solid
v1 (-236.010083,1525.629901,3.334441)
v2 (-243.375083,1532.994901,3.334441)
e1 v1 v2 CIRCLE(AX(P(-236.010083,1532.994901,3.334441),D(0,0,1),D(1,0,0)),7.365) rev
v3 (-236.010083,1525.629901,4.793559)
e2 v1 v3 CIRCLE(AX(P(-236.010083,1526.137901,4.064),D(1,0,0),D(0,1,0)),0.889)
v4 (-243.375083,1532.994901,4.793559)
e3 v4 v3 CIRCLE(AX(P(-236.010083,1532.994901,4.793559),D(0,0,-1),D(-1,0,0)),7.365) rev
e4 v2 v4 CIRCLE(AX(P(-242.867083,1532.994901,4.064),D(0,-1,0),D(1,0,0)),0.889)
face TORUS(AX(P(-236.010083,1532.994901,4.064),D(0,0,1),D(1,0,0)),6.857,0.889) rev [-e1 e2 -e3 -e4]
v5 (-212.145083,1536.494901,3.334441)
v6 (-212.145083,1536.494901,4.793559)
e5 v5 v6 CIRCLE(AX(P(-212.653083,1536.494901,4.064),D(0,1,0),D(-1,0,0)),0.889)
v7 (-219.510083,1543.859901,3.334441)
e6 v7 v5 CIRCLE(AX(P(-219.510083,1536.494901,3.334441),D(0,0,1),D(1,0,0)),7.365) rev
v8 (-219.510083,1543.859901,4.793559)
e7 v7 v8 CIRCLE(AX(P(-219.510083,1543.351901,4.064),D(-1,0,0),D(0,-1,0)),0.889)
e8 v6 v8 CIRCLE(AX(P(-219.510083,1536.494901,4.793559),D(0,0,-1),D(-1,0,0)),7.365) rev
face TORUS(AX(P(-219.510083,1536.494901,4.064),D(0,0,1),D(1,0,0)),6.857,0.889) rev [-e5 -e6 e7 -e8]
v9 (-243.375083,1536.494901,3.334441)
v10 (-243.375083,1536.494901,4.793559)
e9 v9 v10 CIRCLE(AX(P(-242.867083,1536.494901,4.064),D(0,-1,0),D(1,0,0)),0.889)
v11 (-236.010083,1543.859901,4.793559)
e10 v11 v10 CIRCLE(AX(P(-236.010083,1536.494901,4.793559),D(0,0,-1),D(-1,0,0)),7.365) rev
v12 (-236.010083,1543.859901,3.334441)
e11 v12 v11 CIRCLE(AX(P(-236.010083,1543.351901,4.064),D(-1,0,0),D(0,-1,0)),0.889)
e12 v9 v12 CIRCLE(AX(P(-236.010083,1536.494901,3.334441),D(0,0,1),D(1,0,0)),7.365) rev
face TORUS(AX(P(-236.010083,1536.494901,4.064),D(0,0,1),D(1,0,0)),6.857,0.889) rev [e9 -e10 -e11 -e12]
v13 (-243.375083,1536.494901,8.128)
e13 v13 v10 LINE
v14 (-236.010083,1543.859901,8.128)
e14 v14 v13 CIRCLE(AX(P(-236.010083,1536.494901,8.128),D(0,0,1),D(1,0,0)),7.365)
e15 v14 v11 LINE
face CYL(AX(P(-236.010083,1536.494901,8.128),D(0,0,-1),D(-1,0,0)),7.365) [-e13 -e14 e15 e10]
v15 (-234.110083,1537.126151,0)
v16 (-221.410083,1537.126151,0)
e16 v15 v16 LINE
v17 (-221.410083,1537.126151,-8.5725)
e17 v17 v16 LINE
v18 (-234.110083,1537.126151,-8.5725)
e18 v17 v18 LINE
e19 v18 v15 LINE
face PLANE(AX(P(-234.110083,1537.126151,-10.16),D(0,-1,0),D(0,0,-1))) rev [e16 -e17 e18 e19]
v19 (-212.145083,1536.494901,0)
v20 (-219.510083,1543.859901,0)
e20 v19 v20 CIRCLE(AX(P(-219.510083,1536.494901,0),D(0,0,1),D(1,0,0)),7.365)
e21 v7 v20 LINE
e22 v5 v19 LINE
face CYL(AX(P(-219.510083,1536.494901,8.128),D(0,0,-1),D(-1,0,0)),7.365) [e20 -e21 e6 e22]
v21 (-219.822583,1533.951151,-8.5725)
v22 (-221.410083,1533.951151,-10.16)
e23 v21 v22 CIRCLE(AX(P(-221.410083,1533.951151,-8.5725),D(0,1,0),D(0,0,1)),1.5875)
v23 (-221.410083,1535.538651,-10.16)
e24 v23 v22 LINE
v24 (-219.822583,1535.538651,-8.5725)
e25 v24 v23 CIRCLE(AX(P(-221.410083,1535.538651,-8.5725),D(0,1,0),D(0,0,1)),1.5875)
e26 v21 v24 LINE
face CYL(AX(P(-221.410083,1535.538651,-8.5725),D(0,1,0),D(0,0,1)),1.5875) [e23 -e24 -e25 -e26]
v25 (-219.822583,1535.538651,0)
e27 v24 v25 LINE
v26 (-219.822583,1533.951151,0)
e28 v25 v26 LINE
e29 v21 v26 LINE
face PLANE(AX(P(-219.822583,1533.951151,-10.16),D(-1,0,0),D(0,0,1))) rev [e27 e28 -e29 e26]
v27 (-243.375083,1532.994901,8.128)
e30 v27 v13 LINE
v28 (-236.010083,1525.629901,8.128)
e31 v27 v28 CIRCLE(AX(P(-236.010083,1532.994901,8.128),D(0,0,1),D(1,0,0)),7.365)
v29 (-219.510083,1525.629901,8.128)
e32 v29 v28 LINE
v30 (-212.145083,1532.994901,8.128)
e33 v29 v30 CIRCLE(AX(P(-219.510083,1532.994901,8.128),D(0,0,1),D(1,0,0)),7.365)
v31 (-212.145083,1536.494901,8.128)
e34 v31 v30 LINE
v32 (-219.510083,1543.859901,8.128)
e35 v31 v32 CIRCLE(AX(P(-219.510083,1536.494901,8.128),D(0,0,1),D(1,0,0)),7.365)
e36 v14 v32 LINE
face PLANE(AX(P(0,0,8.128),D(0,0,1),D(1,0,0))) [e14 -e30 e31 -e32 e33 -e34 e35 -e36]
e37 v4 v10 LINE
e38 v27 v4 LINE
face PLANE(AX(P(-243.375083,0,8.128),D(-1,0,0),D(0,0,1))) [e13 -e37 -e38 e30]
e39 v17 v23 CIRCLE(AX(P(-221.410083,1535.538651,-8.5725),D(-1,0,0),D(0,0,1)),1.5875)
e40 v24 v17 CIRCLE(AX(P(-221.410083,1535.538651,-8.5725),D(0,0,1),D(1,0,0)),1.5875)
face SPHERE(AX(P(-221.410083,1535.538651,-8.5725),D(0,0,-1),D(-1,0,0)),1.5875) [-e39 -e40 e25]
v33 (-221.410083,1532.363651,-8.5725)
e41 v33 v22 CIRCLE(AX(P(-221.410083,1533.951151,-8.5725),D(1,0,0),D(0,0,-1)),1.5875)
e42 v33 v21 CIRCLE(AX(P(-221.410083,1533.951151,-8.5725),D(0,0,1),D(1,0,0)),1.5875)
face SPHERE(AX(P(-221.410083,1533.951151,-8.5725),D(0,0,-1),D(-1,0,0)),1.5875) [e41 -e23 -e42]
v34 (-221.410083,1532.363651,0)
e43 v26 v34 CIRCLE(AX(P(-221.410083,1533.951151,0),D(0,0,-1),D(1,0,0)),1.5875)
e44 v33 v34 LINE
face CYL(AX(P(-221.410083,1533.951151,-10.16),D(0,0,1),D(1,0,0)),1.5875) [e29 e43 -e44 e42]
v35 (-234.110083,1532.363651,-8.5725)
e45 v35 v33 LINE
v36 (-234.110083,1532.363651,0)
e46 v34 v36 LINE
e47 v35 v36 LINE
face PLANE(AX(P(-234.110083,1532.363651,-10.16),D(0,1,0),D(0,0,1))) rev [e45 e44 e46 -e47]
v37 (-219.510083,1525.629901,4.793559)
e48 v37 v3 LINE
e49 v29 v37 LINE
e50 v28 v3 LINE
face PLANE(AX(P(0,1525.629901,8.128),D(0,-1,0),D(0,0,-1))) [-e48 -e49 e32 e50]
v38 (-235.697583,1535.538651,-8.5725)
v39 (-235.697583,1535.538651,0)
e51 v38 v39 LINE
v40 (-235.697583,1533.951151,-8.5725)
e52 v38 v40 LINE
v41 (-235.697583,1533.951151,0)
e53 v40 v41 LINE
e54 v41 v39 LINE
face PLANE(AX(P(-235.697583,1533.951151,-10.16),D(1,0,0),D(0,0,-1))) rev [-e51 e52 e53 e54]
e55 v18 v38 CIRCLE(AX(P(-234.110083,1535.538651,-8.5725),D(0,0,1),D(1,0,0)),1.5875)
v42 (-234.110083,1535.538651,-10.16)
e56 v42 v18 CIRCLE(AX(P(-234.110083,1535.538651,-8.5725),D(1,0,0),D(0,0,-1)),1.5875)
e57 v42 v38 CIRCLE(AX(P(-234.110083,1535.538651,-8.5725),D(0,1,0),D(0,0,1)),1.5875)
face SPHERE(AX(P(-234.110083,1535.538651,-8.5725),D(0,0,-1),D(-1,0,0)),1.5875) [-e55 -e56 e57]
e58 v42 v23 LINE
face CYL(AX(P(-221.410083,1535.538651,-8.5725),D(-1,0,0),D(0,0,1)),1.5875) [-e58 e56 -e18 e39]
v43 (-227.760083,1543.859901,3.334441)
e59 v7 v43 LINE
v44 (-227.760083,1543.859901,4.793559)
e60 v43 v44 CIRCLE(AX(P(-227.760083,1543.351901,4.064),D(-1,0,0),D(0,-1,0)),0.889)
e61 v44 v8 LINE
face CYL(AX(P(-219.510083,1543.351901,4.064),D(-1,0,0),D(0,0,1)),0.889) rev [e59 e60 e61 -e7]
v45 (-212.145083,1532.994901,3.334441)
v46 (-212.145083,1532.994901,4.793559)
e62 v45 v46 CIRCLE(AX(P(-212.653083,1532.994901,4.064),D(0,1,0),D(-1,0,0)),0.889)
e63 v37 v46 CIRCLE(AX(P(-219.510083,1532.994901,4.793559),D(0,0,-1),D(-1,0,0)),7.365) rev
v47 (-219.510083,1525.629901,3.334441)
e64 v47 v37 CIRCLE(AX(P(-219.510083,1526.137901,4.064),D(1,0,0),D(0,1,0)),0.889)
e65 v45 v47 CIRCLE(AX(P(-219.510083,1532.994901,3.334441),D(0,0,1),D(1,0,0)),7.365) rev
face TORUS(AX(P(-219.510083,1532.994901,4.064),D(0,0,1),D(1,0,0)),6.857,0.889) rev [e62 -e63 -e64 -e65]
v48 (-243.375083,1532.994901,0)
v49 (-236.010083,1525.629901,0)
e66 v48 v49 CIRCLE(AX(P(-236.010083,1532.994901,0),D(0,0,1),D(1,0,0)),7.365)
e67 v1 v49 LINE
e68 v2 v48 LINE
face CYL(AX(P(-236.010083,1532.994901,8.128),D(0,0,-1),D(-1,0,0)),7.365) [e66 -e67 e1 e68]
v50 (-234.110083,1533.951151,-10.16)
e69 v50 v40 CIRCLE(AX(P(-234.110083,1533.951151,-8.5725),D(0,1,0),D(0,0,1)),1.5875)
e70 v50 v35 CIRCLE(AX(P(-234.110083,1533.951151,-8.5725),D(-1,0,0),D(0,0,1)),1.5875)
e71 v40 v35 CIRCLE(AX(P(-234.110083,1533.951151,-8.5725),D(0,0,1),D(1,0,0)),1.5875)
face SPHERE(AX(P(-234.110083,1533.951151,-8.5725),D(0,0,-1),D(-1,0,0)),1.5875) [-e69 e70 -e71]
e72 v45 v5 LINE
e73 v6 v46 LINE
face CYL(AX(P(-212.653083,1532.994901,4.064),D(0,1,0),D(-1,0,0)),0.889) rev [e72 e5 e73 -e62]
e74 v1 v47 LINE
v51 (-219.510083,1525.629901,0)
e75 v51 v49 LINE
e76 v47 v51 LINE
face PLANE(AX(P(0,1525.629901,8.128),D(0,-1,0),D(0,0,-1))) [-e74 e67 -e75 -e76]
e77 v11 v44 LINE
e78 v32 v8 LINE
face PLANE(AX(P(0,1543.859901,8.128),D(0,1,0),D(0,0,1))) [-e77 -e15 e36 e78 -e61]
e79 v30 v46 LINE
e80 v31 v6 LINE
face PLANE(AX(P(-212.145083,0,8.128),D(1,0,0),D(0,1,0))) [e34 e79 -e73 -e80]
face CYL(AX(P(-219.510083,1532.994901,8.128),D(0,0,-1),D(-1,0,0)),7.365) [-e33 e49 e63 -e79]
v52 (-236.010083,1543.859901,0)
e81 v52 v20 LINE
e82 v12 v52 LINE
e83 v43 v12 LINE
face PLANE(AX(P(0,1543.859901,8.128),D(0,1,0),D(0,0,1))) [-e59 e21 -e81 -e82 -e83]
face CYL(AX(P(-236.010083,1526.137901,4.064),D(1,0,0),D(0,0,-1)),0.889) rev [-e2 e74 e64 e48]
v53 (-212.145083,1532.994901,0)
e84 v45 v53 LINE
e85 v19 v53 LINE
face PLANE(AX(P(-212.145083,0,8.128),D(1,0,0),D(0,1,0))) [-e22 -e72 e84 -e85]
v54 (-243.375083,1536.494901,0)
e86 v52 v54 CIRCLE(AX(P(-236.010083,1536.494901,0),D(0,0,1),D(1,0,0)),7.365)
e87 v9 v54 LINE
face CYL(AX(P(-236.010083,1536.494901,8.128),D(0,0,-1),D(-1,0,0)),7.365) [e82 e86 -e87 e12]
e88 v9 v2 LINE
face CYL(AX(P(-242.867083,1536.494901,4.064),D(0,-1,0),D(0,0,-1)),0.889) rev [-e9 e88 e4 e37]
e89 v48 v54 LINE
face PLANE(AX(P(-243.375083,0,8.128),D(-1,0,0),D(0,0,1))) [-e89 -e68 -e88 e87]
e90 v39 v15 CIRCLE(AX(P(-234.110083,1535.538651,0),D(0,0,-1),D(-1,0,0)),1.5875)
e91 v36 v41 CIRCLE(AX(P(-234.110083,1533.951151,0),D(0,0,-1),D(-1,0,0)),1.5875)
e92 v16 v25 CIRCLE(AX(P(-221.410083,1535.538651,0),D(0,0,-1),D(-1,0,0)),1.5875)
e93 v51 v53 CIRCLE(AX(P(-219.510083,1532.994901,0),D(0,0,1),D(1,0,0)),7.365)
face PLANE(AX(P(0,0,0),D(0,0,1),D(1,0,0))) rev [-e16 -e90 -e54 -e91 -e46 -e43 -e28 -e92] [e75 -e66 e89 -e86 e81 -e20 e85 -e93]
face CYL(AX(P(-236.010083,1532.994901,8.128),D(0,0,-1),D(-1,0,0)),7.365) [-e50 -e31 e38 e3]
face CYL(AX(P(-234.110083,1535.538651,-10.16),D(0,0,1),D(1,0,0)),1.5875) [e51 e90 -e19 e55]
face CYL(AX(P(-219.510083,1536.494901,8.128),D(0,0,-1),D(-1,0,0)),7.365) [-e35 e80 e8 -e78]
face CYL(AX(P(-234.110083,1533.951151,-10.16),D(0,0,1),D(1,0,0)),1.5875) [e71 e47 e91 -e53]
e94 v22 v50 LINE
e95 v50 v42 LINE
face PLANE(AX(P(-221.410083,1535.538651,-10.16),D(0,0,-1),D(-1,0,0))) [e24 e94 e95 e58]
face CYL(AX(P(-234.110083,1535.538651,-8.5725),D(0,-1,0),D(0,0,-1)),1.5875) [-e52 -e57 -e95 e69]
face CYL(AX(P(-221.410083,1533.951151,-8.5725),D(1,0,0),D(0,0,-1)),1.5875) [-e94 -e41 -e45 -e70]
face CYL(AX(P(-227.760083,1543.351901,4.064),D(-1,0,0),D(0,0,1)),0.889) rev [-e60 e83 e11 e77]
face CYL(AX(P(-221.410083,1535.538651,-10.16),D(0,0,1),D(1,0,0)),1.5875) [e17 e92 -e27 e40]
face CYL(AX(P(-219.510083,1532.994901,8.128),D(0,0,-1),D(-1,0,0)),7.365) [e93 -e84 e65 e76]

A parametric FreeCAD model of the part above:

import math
import FreeCAD as App
import Part
import Sketcher
Q = App.Units.Quantity


def edges_at(feature, points):
    """Names of the edges that pass closest to the given points."""
    edges = feature.Shape.Edges
    near = lambda p: min(range(len(edges)), key=lambda i: edges[i].distToShape(Part.Vertex(*p))[0])
    return sorted({f"Edge{near(p) + 1}" for p in points})

doc = App.newDocument("Part")
body = doc.addObject("PartDesign::Body", "Body")

sketch1 = body.newObject("Sketcher::SketchObject", "Sketch")
sketch1.AttachmentSupport = (doc.getObject("XY_Plane"), [""])
sketch1.MapMode = "FlatFace"
sketch1.addGeometry([
    Part.LineSegment(App.Vector(-243.375083, 1536.494901, 0), App.Vector(-243.375083, 1532.994901, 0)),
    Part.ArcOfCircle(Part.Circle(App.Vector(-236.010083, 1532.994901, 0), App.Vector(0, 0, 1), 7.365), math.radians(180), math.radians(270)),
    Part.LineSegment(App.Vector(-236.010083, 1525.629901, 0), App.Vector(-219.510083, 1525.629901, 0)),
    Part.ArcOfCircle(Part.Circle(App.Vector(-219.510083, 1532.994901, 0), App.Vector(0, 0, 1), 7.365), math.radians(-90), math.radians(0)),
    Part.LineSegment(App.Vector(-212.145083, 1532.994901, 0), App.Vector(-212.145083, 1536.494901, 0)),
    Part.ArcOfCircle(Part.Circle(App.Vector(-219.510083, 1536.494901, 0), App.Vector(0, 0, 1), 7.365), math.radians(0), math.radians(90)),
    Part.LineSegment(App.Vector(-219.510083, 1543.859901, 0), App.Vector(-236.010083, 1543.859901, 0)),
    Part.ArcOfCircle(Part.Circle(App.Vector(-236.010083, 1536.494901, 0), App.Vector(0, 0, 1), 7.365), math.radians(90), math.radians(180)),
], False)
sketch1.addConstraint([
    Sketcher.Constraint("Tangent", 0, 2, 1, 1),
    Sketcher.Constraint("Tangent", 1, 2, 2, 1),
    Sketcher.Constraint("Tangent", 2, 2, 3, 1),
    Sketcher.Constraint("Tangent", 3, 2, 4, 1),
    Sketcher.Constraint("Tangent", 4, 2, 5, 1),
    Sketcher.Constraint("Tangent", 5, 2, 6, 1),
    Sketcher.Constraint("Tangent", 6, 2, 7, 1),
    Sketcher.Constraint("Tangent", 7, 2, 0, 1),
    Sketcher.Constraint("Vertical", 0),
    Sketcher.Constraint("Horizontal", 2),
    Sketcher.Constraint("Vertical", 4),
    Sketcher.Constraint("Horizontal", 6),
    Sketcher.Constraint("Equal", 1, 3),
    Sketcher.Constraint("Equal", 3, 5),
    Sketcher.Constraint("Equal", 5, 7),
    Sketcher.Constraint("Radius", 1, 7.365),
    Sketcher.Constraint("DistanceX", 2, 1, 2, 2, 16.5),
    Sketcher.Constraint("DistanceY", 0, 2, 0, 1, 3.5),
    Sketcher.Constraint("DistanceY", -1, 1, 1, 3, 1532.994901),
    Sketcher.Constraint("DistanceX", 1, 3, -1, 1, 236.010083),
])
pad1 = body.newObject("PartDesign::Pad", "Pad")
pad1.Profile = sketch1
pad1.Length = Q("0.32 in")

sketch2 = body.newObject("Sketcher::SketchObject", "Sketch001")
sketch2.AttachmentSupport = (doc.getObject("XY_Plane"), [""])
sketch2.MapMode = "FlatFace"
sketch2.addGeometry([
    Part.LineSegment(App.Vector(-221.410083, 1532.363651, 0), App.Vector(-234.110083, 1532.363651, 0)),
    Part.ArcOfCircle(Part.Circle(App.Vector(-234.110083, 1533.951151, 0), App.Vector(0, 0, 1), 1.5875), math.radians(180), math.radians(270)),
    Part.LineSegment(App.Vector(-235.697583, 1533.951151, 0), App.Vector(-235.697583, 1535.538651, 0)),
    Part.ArcOfCircle(Part.Circle(App.Vector(-234.110083, 1535.538651, 0), App.Vector(0, 0, 1), 1.5875), math.radians(90), math.radians(180)),
    Part.LineSegment(App.Vector(-234.110083, 1537.126151, 0), App.Vector(-221.410083, 1537.126151, 0)),
    Part.ArcOfCircle(Part.Circle(App.Vector(-221.410083, 1535.538651, 0), App.Vector(0, 0, 1), 1.5875), math.radians(0), math.radians(90)),
    Part.LineSegment(App.Vector(-219.822583, 1535.538651, 0), App.Vector(-219.822583, 1533.951151, 0)),
    Part.ArcOfCircle(Part.Circle(App.Vector(-221.410083, 1533.951151, 0), App.Vector(0, 0, 1), 1.5875), math.radians(-90), math.radians(0)),
], False)
sketch2.addConstraint([
    Sketcher.Constraint("Tangent", 0, 2, 1, 2),
    Sketcher.Constraint("Tangent", 1, 1, 2, 1),
    Sketcher.Constraint("Tangent", 2, 2, 3, 2),
    Sketcher.Constraint("Tangent", 3, 1, 4, 1),
    Sketcher.Constraint("Tangent", 4, 2, 5, 2),
    Sketcher.Constraint("Tangent", 5, 1, 6, 1),
    Sketcher.Constraint("Tangent", 6, 2, 7, 2),
    Sketcher.Constraint("Tangent", 7, 1, 0, 1),
    Sketcher.Constraint("Horizontal", 0),
    Sketcher.Constraint("Vertical", 2),
    Sketcher.Constraint("Horizontal", 4),
    Sketcher.Constraint("Vertical", 6),
    Sketcher.Constraint("Equal", 1, 3),
    Sketcher.Constraint("Equal", 3, 5),
    Sketcher.Constraint("Equal", 5, 7),
    Sketcher.Constraint("DistanceX", 0, 2, 0, 1, Q("0.5 in")),
    Sketcher.Constraint("Radius", 1, Q("0.0625 in")),
    Sketcher.Constraint("DistanceY", 2, 1, 2, 2, Q("0.0625 in")),
    Sketcher.Constraint("DistanceY", -1, 1, 1, 3, 1533.951151),
    Sketcher.Constraint("DistanceX", 1, 3, -1, 1, 234.110083),
])
pad2 = body.newObject("PartDesign::Pad", "Pad001")
pad2.Profile = sketch2
pad2.Length = Q("0.4 in")
pad2.Reversed = True
doc.recompute()

fillet = body.newObject("PartDesign::Fillet", "Fillet")
fillet.Base = (pad2, edges_at(pad2, [
    (-220.288, 1536.661, -10.16),
    (-219.823, 1534.745, -10.16),
    (-220.288, 1532.829, -10.16),
    (-227.76, 1532.364, -10.16),
    (-235.233, 1532.829, -10.16),
    (-235.698, 1534.745, -10.16),
    (-235.233, 1536.661, -10.16),
    (-227.76, 1537.126, -10.16),
]))
fillet.Radius = Q("0.0625 in")

sketch3 = body.newObject("Sketcher::SketchObject", "Sketch002")
sketch3.AttachmentSupport = (doc.getObject("YZ_Plane"), [""])
sketch3.MapMode = "FlatFace"
sketch3.AttachmentOffset = App.Placement(App.Vector(0, 0, -227.760083), App.Rotation())
sketch3.addGeometry(Part.Circle(App.Vector(1543.351901, 4.064, 0), App.Vector(0, 0, 1), 0.889), False)
sketch3.addConstraint([
    Sketcher.Constraint("Diameter", 0, Q("0.07 in")),
    Sketcher.Constraint("DistanceY", -1, 1, 0, 3, Q("0.16 in")),
    Sketcher.Constraint("DistanceX", -1, 1, 0, 3, 1543.351901),
])

sketch4 = body.newObject("Sketcher::SketchObject", "Sketch003")
sketch4.AttachmentSupport = (doc.getObject("XY_Plane"), [""])
sketch4.MapMode = "FlatFace"
sketch4.AttachmentOffset = App.Placement(App.Vector(0, 0, 0.16 * 25.4), App.Rotation())
sketch4.addGeometry([
    Part.LineSegment(App.Vector(-243.375083, 1536.494901, 0), App.Vector(-243.375083, 1532.994901, 0)),
    Part.ArcOfCircle(Part.Circle(App.Vector(-236.010083, 1532.994901, 0), App.Vector(0, 0, 1), 7.365), math.radians(180), math.radians(270)),
    Part.LineSegment(App.Vector(-236.010083, 1525.629901, 0), App.Vector(-219.510083, 1525.629901, 0)),
    Part.ArcOfCircle(Part.Circle(App.Vector(-219.510083, 1532.994901, 0), App.Vector(0, 0, 1), 7.365), math.radians(-90), math.radians(0)),
    Part.LineSegment(App.Vector(-212.145083, 1532.994901, 0), App.Vector(-212.145083, 1536.494901, 0)),
    Part.ArcOfCircle(Part.Circle(App.Vector(-219.510083, 1536.494901, 0), App.Vector(0, 0, 1), 7.365), math.radians(0), math.radians(90)),
    Part.LineSegment(App.Vector(-219.510083, 1543.859901, 0), App.Vector(-236.010083, 1543.859901, 0)),
    Part.ArcOfCircle(Part.Circle(App.Vector(-236.010083, 1536.494901, 0), App.Vector(0, 0, 1), 7.365), math.radians(90), math.radians(180)),
], False)
sketch4.addConstraint([
    Sketcher.Constraint("Tangent", 0, 2, 1, 1),
    Sketcher.Constraint("Tangent", 1, 2, 2, 1),
    Sketcher.Constraint("Tangent", 2, 2, 3, 1),
    Sketcher.Constraint("Tangent", 3, 2, 4, 1),
    Sketcher.Constraint("Tangent", 4, 2, 5, 1),
    Sketcher.Constraint("Tangent", 5, 2, 6, 1),
    Sketcher.Constraint("Tangent", 6, 2, 7, 1),
    Sketcher.Constraint("Tangent", 7, 2, 0, 1),
    Sketcher.Constraint("Vertical", 0),
    Sketcher.Constraint("Horizontal", 2),
    Sketcher.Constraint("Vertical", 4),
    Sketcher.Constraint("Horizontal", 6),
    Sketcher.Constraint("Equal", 1, 3),
    Sketcher.Constraint("Equal", 3, 5),
    Sketcher.Constraint("Equal", 5, 7),
    Sketcher.Constraint("Radius", 1, 7.365),
    Sketcher.Constraint("DistanceX", 2, 1, 2, 2, 16.5),
    Sketcher.Constraint("DistanceY", 0, 2, 0, 1, 3.5),
    Sketcher.Constraint("DistanceY", -1, 1, 1, 3, 1532.994901),
    Sketcher.Constraint("DistanceX", 1, 3, -1, 1, 236.010083),
])
doc.recompute()

subtractivepipe = body.newObject("PartDesign::SubtractivePipe", "SubtractivePipe")
subtractivepipe.Profile = sketch3
subtractivepipe.Spine = (sketch4, ["Edge1", "Edge2", "Edge3", "Edge4", "Edge5", "Edge6", "Edge7", "Edge8"])

doc.recompute()
